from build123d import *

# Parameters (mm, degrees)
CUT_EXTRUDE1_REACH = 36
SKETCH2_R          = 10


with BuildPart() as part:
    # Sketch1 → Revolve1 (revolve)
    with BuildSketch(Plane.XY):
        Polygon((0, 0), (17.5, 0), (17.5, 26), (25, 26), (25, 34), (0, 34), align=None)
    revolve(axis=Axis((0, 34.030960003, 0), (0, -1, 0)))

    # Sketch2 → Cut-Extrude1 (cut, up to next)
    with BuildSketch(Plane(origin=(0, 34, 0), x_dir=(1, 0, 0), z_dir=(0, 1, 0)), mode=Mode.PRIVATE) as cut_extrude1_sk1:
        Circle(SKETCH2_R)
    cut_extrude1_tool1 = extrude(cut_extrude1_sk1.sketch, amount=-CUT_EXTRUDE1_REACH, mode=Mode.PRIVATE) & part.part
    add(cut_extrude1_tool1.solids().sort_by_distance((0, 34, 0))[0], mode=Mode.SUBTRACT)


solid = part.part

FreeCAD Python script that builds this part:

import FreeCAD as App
import Part
import Sketcher
Q = App.Units.Quantity

doc = App.newDocument("Part")
params = doc.addObject("Spreadsheet::Sheet", "Params")
for row, (alias, value) in enumerate([
    ("sketch1_width", "25 mm"),
    ("sketch1_height", "26 mm"),
    ("sketch1_height2", "8 mm"),
    ("sketch1_width2", "17.5 mm"),
    ("revolution_angle", "360 deg"),
    ("sketch2_diameter", "20 mm"),
], start=1):
    params.set(f"A{row}", alias)
    params.set(f"B{row}", "=" + value)
    params.setAlias(f"B{row}", alias)

body = doc.addObject("PartDesign::Body", "Body")

# Sketch on XY plane
sketch1 = doc.addObject("Sketcher::SketchObject", "Sketch")
body.addObject(sketch1)
sketch1.AttachmentSupport = (doc.XY_Plane, [""])
sketch1.MapMode = "FlatFace"
sketch1.addGeometry(Part.LineSegment(App.Vector(0, 0, 0), App.Vector(18, 0, 0)), False)
sketch1.addGeometry(Part.LineSegment(App.Vector(18, 0, 0), App.Vector(18, 26, 0)), False)
sketch1.addGeometry(Part.LineSegment(App.Vector(18, 26, 0), App.Vector(25, 26, 0)), False)
sketch1.addGeometry(Part.LineSegment(App.Vector(25, 26, 0), App.Vector(25, 34, 0)), False)
sketch1.addGeometry(Part.LineSegment(App.Vector(25, 34, 0), App.Vector(0, 34, 0)), False)
sketch1.addGeometry(Part.LineSegment(App.Vector(0, 34, 0), App.Vector(0, 0, 0)), False)
sketch1.addConstraint(Sketcher.Constraint("Coincident", 0, 2, 1, 1))
sketch1.addConstraint(Sketcher.Constraint("Coincident", 1, 2, 2, 1))
sketch1.addConstraint(Sketcher.Constraint("Coincident", 2, 2, 3, 1))
sketch1.addConstraint(Sketcher.Constraint("Coincident", 3, 2, 4, 1))
sketch1.addConstraint(Sketcher.Constraint("Coincident", 4, 2, 5, 1))
sketch1.addConstraint(Sketcher.Constraint("Coincident", 5, 2, 0, 1))
sketch1.addConstraint(Sketcher.Constraint("Horizontal", 0))
sketch1.addConstraint(Sketcher.Constraint("Vertical", 1))
sketch1.addConstraint(Sketcher.Constraint("Horizontal", 2))
sketch1.addConstraint(Sketcher.Constraint("Vertical", 3))
sketch1.addConstraint(Sketcher.Constraint("Horizontal", 4))
sketch1.addConstraint(Sketcher.Constraint("Vertical", 5))
sketch1.addConstraint(Sketcher.Constraint("Coincident", 5, 2, -1, 1))
sketch1.addConstraint(Sketcher.Constraint("DistanceX", 4, 2, 4, 1, Q("25 mm")))
sketch1.addConstraint(Sketcher.Constraint("DistanceY", 1, 1, 1, 2, Q("26 mm")))
sketch1.addConstraint(Sketcher.Constraint("DistanceY", 3, 1, 3, 2, Q("8 mm")))
sketch1.addConstraint(Sketcher.Constraint("DistanceX", 0, 1, 0, 2, Q("17.5 mm")))
sketch1.setExpression("Constraints[13]", "Params.sketch1_width")
sketch1.setExpression("Constraints[14]", "Params.sketch1_height")
sketch1.setExpression("Constraints[15]", "Params.sketch1_height2")
sketch1.setExpression("Constraints[16]", "Params.sketch1_width2")
revolution = doc.addObject("PartDesign::Revolution", "Revolution")
body.addObject(revolution)
revolution.Profile = sketch1
revolution.ReferenceAxis = (sketch1, ["V_Axis"])
revolution.setExpression("Angle", "Params.revolution_angle")

# Sketch on XZ plane
sketch2 = doc.addObject("Sketcher::SketchObject", "Sketch001")
body.addObject(sketch2)
sketch2.AttachmentSupport = (doc.XZ_Plane, [""])
sketch2.MapMode = "FlatFace"
sketch2.AttachmentOffset = App.Placement(App.Vector(0, 0, -34), App.Rotation())
sketch2.addGeometry(Part.Circle(App.Vector(0, 0, 0), App.Vector(0, 0, 1), 10), False)
sketch2.addConstraint(Sketcher.Constraint("Coincident", 0, 3, -1, 1))
sketch2.addConstraint(Sketcher.Constraint("Diameter", 0, Q("20 mm")))
sketch2.setExpression("Constraints[1]", "Params.sketch2_diameter")
pocket1 = doc.addObject("PartDesign::Pocket", "Pocket")
body.addObject(pocket1)
pocket1.Profile = sketch2
pocket1.Type = "UpToFirst"
pocket1.Reversed = True

doc.recompute()
